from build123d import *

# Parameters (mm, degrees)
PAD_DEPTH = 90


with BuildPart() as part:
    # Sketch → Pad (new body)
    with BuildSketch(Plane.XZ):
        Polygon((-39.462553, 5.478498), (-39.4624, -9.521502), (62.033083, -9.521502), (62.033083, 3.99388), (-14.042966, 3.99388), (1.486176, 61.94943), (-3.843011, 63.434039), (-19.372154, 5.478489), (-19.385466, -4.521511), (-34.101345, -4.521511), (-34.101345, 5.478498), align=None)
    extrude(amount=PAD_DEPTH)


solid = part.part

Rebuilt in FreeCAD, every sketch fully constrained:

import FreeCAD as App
import Part
import Sketcher

V = App.Vector
Q = App.Units.Quantity

doc = App.newDocument("Part")
params = doc.addObject("Spreadsheet::Sheet", "Params")
for row, (alias, value) in enumerate([
    ("sketch1_length", "15 mm"),
    ("sketch1_length2", "60 mm"),
    ("pad1_length", "90 mm"),
], start=1):
    params.set(f"A{row}", alias)
    params.set(f"B{row}", "=" + value)
    params.setAlias(f"B{row}", alias)

body = doc.addObject("PartDesign::Body", "Body")

# Sketch on XZ plane
sketch1 = body.newObject("Sketcher::SketchObject", "Sketch")
sketch1.AttachmentSupport = (doc.getObject("XZ_Plane"), [""])
sketch1.MapMode = "FlatFace"
sketch1.addGeometry(Part.LineSegment(V(-39, 5, 0), V(-39, -10, 0)), False)
sketch1.addGeometry(Part.LineSegment(V(-39, -10, 0), V(62, -10, 0)), False)
sketch1.addGeometry(Part.LineSegment(V(62, -10, 0), V(62, 4, 0)), False)
sketch1.addGeometry(Part.LineSegment(V(62, 4, 0), V(-14, 4, 0)), False)
sketch1.addGeometry(Part.LineSegment(V(-14, 4, 0), V(1, 62, 0)), False)
sketch1.addGeometry(Part.LineSegment(V(1, 62, 0), V(-4, 63, 0)), False)
sketch1.addGeometry(Part.LineSegment(V(-4, 63, 0), V(-19, 5, 0)), False)
sketch1.addGeometry(Part.LineSegment(V(-19, 5, 0), V(-19, -5, 0)), False)
sketch1.addGeometry(Part.LineSegment(V(-19, -5, 0), V(-34, -5, 0)), False)
sketch1.addGeometry(Part.LineSegment(V(-34, -5, 0), V(-34, 5, 0)), False)
sketch1.addGeometry(Part.LineSegment(V(-34, 5, 0), V(-39, 5, 0)), False)
sketch1.addConstraint(Sketcher.Constraint("Coincident", 0, 2, 1, 1))
sketch1.addConstraint(Sketcher.Constraint("Coincident", 1, 2, 2, 1))
sketch1.addConstraint(Sketcher.Constraint("Coincident", 2, 2, 3, 1))
sketch1.addConstraint(Sketcher.Constraint("Coincident", 3, 2, 4, 1))
sketch1.addConstraint(Sketcher.Constraint("Coincident", 4, 2, 5, 1))
sketch1.addConstraint(Sketcher.Constraint("Coincident", 5, 2, 6, 1))
sketch1.addConstraint(Sketcher.Constraint("Coincident", 6, 2, 7, 1))
sketch1.addConstraint(Sketcher.Constraint("Coincident", 7, 2, 8, 1))
sketch1.addConstraint(Sketcher.Constraint("Coincident", 8, 2, 9, 1))
sketch1.addConstraint(Sketcher.Constraint("Coincident", 9, 2, 10, 1))
sketch1.addConstraint(Sketcher.Constraint("Coincident", 10, 2, 0, 1))
sketch1.addConstraint(Sketcher.Constraint("Horizontal", 1))
sketch1.addConstraint(Sketcher.Constraint("Vertical", 2))
sketch1.addConstraint(Sketcher.Constraint("Horizontal", 3))
sketch1.addConstraint(Sketcher.Constraint("Horizontal", 8))
sketch1.addConstraint(Sketcher.Constraint("Vertical", 9))
sketch1.addConstraint(Sketcher.Constraint("Horizontal", 10))
sketch1.addConstraint(Sketcher.Constraint("Parallel", 4, 6))
sketch1.addConstraint(Sketcher.Constraint("Equal", 4, 6))
sketch1.addConstraint(Sketcher.Constraint("Angle", 4, Q("75.000001 deg")))
sketch1.addConstraint(Sketcher.Constraint("Distance", 0, Q("15 mm")))
sketch1.addConstraint(Sketcher.Constraint("Distance", 4, Q("60 mm")))
sketch1.addConstraint(Sketcher.Constraint("DistanceY", 7, 2, 6, 2, Q("10 mm")))
sketch1.addConstraint(Sketcher.Constraint("DistanceX", 3, 2, 3, 1, Q("76.076049 mm")))
sketch1.addConstraint(Sketcher.Constraint("DistanceX", 8, 2, 8, 1, Q("14.715879 mm")))
sketch1.addConstraint(Sketcher.Constraint("DistanceY", 2, 1, 2, 2, Q("13.515382 mm")))
sketch1.addConstraint(Sketcher.Constraint("DistanceY", 9, 1, 9, 2, Q("10.000009 mm")))
sketch1.addConstraint(Sketcher.Constraint("DistanceX", 0, 2, -1, 1, Q("39.4624 mm")))
sketch1.addConstraint(Sketcher.Constraint("DistanceX", 7, 2, 3, 2, Q("5.3425 mm")))
sketch1.addConstraint(Sketcher.Constraint("DistanceX", 10, 2, 6, 2, Q("20.090399 mm")))
sketch1.addConstraint(Sketcher.Constraint("DistanceX", 1, 1, 1, 2, Q("101.495483 mm")))
sketch1.addConstraint(Sketcher.Constraint("DistanceX", 10, 2, 10, 1, Q("5.361208 mm")))
sketch1.addConstraint(Sketcher.Constraint("DistanceY", -1, 1, 2, 2, Q("3.99388 mm")))
sketch1.setExpression("Constraints[20]", "Params.sketch1_length")
sketch1.setExpression("Constraints[21]", "Params.sketch1_length2")
pad1 = body.newObject("PartDesign::Pad", "Pad")
pad1.Profile = sketch1
pad1.setExpression("Length", "Params.pad1_length")

doc.recompute()
